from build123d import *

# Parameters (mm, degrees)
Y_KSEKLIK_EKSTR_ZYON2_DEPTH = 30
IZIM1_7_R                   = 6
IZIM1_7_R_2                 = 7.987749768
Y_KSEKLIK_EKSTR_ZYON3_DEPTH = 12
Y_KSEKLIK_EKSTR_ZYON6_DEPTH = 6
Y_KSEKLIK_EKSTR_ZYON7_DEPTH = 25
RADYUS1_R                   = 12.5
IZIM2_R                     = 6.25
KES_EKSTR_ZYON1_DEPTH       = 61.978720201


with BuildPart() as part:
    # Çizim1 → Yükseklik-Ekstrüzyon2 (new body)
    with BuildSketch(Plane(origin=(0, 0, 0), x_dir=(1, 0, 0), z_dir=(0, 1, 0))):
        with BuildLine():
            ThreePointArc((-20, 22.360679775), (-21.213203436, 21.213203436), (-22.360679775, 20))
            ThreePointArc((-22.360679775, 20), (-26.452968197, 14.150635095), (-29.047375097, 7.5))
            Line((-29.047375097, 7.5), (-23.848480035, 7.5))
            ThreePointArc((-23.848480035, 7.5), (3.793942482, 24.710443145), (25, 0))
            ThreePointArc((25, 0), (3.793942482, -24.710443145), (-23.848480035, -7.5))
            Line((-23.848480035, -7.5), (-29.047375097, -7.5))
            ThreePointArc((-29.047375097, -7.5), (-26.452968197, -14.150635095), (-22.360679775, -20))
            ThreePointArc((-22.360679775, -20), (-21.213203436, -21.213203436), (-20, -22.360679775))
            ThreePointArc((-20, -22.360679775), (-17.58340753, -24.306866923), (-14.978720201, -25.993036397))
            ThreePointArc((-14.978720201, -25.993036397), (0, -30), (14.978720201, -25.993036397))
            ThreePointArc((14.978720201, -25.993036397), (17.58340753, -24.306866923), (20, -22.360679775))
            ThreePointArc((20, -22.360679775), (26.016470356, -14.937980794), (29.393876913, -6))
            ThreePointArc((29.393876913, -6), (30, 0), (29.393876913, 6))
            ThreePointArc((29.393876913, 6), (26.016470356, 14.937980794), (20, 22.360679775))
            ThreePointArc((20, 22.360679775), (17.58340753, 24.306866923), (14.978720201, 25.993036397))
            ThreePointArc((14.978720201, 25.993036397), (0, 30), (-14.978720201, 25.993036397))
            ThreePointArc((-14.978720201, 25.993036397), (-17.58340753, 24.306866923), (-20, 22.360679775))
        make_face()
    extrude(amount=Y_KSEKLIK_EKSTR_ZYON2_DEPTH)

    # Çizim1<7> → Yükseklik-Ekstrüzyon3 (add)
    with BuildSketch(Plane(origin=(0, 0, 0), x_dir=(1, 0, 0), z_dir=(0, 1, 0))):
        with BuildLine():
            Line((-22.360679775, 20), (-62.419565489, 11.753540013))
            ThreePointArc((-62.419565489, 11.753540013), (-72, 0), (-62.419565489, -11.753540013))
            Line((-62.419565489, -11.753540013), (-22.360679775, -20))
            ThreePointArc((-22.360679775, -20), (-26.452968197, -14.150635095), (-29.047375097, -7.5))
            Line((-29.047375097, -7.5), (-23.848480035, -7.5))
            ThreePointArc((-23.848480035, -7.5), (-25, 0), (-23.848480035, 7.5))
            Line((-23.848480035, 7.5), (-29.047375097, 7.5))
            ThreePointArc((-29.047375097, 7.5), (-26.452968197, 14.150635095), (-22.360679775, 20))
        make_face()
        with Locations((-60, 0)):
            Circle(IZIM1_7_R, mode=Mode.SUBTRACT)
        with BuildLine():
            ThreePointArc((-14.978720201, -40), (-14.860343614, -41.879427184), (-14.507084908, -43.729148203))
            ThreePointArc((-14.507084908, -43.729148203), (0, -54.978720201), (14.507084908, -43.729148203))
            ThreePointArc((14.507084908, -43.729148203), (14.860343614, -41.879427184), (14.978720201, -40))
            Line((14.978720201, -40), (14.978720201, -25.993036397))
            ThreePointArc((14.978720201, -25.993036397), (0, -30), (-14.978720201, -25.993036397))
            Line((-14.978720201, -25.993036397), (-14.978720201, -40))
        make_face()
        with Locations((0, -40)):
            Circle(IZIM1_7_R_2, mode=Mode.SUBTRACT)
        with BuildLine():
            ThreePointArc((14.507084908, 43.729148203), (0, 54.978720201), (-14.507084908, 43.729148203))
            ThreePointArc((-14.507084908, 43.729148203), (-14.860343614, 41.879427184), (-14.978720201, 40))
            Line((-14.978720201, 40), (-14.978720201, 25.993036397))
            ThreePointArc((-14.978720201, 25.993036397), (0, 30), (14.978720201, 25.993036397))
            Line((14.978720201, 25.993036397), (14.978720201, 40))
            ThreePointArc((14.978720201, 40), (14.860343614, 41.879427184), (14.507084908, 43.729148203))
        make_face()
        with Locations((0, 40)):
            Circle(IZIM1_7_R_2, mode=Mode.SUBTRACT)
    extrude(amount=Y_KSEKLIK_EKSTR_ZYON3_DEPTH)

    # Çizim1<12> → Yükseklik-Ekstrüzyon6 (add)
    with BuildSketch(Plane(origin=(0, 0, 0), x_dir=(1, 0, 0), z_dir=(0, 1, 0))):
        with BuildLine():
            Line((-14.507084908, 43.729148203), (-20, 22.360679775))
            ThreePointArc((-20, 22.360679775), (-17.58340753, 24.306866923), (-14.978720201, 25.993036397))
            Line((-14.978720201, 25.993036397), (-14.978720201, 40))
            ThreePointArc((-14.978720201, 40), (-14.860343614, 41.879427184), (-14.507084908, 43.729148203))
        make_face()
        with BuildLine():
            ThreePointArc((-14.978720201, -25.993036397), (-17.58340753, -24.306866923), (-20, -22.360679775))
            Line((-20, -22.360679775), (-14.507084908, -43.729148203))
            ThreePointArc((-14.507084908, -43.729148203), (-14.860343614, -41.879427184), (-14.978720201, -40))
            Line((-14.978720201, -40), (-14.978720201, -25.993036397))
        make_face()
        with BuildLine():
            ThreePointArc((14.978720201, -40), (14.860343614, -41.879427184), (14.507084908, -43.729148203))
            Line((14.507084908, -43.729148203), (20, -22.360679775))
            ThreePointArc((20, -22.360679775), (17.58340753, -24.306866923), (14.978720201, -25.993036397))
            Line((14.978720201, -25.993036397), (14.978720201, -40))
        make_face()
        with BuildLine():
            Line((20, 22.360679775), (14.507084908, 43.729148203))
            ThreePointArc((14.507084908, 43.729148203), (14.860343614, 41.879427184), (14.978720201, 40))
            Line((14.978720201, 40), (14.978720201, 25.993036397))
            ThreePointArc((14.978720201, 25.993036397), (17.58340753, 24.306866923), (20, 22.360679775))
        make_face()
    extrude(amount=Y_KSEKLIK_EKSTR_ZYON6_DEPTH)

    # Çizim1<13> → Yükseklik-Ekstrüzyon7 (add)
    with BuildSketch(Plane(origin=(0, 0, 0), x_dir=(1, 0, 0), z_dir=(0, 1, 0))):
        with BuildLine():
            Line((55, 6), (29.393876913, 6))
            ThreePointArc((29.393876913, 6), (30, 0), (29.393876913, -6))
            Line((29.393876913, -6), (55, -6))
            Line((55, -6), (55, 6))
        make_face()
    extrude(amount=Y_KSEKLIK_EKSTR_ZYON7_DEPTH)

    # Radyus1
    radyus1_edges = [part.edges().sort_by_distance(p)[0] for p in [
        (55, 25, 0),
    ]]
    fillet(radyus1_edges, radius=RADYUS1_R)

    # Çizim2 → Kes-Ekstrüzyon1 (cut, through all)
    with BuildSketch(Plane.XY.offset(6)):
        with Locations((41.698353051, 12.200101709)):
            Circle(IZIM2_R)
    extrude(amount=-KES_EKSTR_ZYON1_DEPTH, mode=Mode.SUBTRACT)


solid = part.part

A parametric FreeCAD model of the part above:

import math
import FreeCAD as App
import Part
import Sketcher
Q = App.Units.Quantity


def edges_at(feature, points):
    """Names of the edges that pass closest to the given points."""
    edges = feature.Shape.Edges
    near = lambda p: min(range(len(edges)), key=lambda i: edges[i].distToShape(Part.Vertex(*p))[0])
    return sorted({f"Edge{near(p) + 1}" for p in points})

doc = App.newDocument("Part")
params = doc.addObject("Spreadsheet::Sheet", "Params")
for row, (alias, value) in enumerate([
    ("sketch1_radius", "30 mm"),
    ("sketch1_radius2", "25 mm"),
    ("pad1_length", "30 mm"),
    ("sketch2_diameter", "12 mm"),
    ("sketch2_radius", "12 mm"),
    ("sketch2_radius2", "30 mm"),
    ("sketch2_radius3", "25 mm"),
    ("pad2_length", "12 mm"),
    ("sketch3_radius", "30 mm"),
    ("pad3_length", "6 mm"),
    ("sketch4_radius", "30 mm"),
    ("sketch4_height", "12 mm"),
    ("pad4_length", "25 mm"),
    ("fillet_radius", "12.5 mm"),
    ("sketch5_diameter", "12.5 mm"),
], start=1):
    params.set(f"A{row}", alias)
    params.set(f"B{row}", "=" + value)
    params.setAlias(f"B{row}", alias)

body = doc.addObject("PartDesign::Body", "Body")

# Sketch on XZ plane
sketch1 = doc.addObject("Sketcher::SketchObject", "Sketch")
body.addObject(sketch1)
sketch1.AttachmentSupport = (doc.XZ_Plane, [""])
sketch1.MapMode = "FlatFace"
sketch1.addGeometry([
    Part.ArcOfCircle(Part.Circle(App.Vector(0, 0, 0), App.Vector(0, 0, 1), 30), math.radians(-138.19), math.radians(-131.81)),  # 0
    Part.ArcOfCircle(Part.Circle(App.Vector(0, 0, 0), App.Vector(0, 0, 1), 30), math.radians(-166), math.radians(-138)),  # 1
    Part.LineSegment(App.Vector(-29, -7.5, 0), App.Vector(-23.8, -7.5, 0)),  # 2
    Part.ArcOfCircle(Part.Circle(App.Vector(0, 0, 0), App.Vector(0, 0, 1), 25), math.radians(-163), math.radians(0)),  # 3
    Part.ArcOfCircle(Part.Circle(App.Vector(0, 0, 0), App.Vector(0, 0, 1), 25), math.radians(0), math.radians(163)),  # 4
    Part.LineSegment(App.Vector(-23.8, 7.5, 0), App.Vector(-29, 7.5, 0)),  # 5
    Part.ArcOfCircle(Part.Circle(App.Vector(0, 0, 0), App.Vector(0, 0, 1), 30), math.radians(138), math.radians(166)),  # 6
    Part.ArcOfCircle(Part.Circle(App.Vector(0, 0, 0), App.Vector(0, 0, 1), 30), math.radians(131.81), math.radians(138.19)),  # 7
    Part.ArcOfCircle(Part.Circle(App.Vector(0, 0, 0), App.Vector(0, 0, 1), 30), math.radians(119.95), math.radians(131.81)),  # 8
    Part.ArcOfCircle(Part.Circle(App.Vector(0, 0, 0), App.Vector(0, 0, 1), 30), math.radians(60), math.radians(120)),  # 9
    Part.ArcOfCircle(Part.Circle(App.Vector(0, 0, 0), App.Vector(0, 0, 1), 30), math.radians(48.19), math.radians(60.05)),  # 10
    Part.ArcOfCircle(Part.Circle(App.Vector(0, 0, 0), App.Vector(0, 0, 1), 30), math.radians(12), math.radians(48)),  # 11
    Part.ArcOfCircle(Part.Circle(App.Vector(0, 0, 0), App.Vector(0, 0, 1), 30), math.radians(-12), math.radians(12)),  # 12
    Part.ArcOfCircle(Part.Circle(App.Vector(0, 0, 0), App.Vector(0, 0, 1), 30), math.radians(-48), math.radians(-12)),  # 13
    Part.ArcOfCircle(Part.Circle(App.Vector(0, 0, 0), App.Vector(0, 0, 1), 30), math.radians(-60.05), math.radians(-48.19)),  # 14
    Part.ArcOfCircle(Part.Circle(App.Vector(0, 0, 0), App.Vector(0, 0, 1), 30), math.radians(-120), math.radians(-60)),  # 15
    Part.ArcOfCircle(Part.Circle(App.Vector(0, 0, 0), App.Vector(0, 0, 1), 30), math.radians(-131.81), math.radians(-119.95)),  # 16
], False)
sketch1.addConstraint([
    Sketcher.Constraint("Tangent", 0, 1, 1, 2),
    Sketcher.Constraint("Coincident", 1, 1, 2, 1),
    Sketcher.Constraint("Coincident", 2, 2, 3, 1),
    Sketcher.Constraint("Tangent", 3, 2, 4, 1),
    Sketcher.Constraint("Coincident", 4, 2, 5, 1),
    Sketcher.Constraint("Coincident", 5, 2, 6, 2),
    Sketcher.Constraint("Tangent", 6, 1, 7, 2),
    Sketcher.Constraint("Tangent", 7, 1, 8, 2),
    Sketcher.Constraint("Tangent", 8, 1, 9, 2),
    Sketcher.Constraint("Tangent", 9, 1, 10, 2),
    Sketcher.Constraint("Tangent", 10, 1, 11, 2),
    Sketcher.Constraint("Tangent", 11, 1, 12, 2),
    Sketcher.Constraint("Tangent", 12, 1, 13, 2),
    Sketcher.Constraint("Tangent", 13, 1, 14, 2),
    Sketcher.Constraint("Tangent", 14, 1, 15, 2),
    Sketcher.Constraint("Tangent", 15, 1, 16, 2),
    Sketcher.Constraint("Tangent", 16, 1, 0, 2),
    Sketcher.Constraint("Horizontal", 2),
    Sketcher.Constraint("Horizontal", 5),
    Sketcher.Constraint("Coincident", 0, 3, -1, 1),
    Sketcher.Constraint("Coincident", 3, 3, -1, 1),
    Sketcher.Constraint("Coincident", 6, 3, -1, 1),
    Sketcher.Constraint("Coincident", 8, 3, -1, 1),
    Sketcher.Constraint("Coincident", 10, 3, -1, 1),
    Sketcher.Constraint("Coincident", 12, 3, -1, 1),
    Sketcher.Constraint("Coincident", 14, 3, -1, 1),
    Sketcher.Constraint("Equal", 0, 1),
    Sketcher.Constraint("Equal", 3, 4),
    Sketcher.Constraint("Equal", 1, 6),
    Sketcher.Constraint("PointOnObject", 3, 2, -1),
    Sketcher.Constraint("Horizontal", 8, 1, 9, 1),
    Sketcher.Constraint("Horizontal", 7, 1, 10, 1),
    Sketcher.Constraint("Horizontal", 14, 1, 15, 1),
    Sketcher.Constraint("Horizontal", 13, 1, 16, 1),
    Sketcher.Constraint("Vertical", 2, 2, 4, 2),
    Sketcher.Constraint("Vertical", 0, 1, 6, 1),
    Sketcher.Constraint("Vertical", 11, 1, 12, 1),
    Sketcher.Constraint("Vertical", 10, 1, 13, 1),
    Sketcher.Constraint("Vertical", 9, 1, 14, 1),
    Sketcher.Constraint("Radius", 0, Q("30 mm")),
    Sketcher.Constraint("Radius", 3, Q("25 mm")),
    Sketcher.Constraint("DistanceY", 0, 1, -1, 1, Q("20 mm")),
    Sketcher.Constraint("DistanceX", 7, 1, -1, 1, Q("20 mm")),
    Sketcher.Constraint("DistanceY", -1, 1, 11, 1, Q("6 mm")),
    Sketcher.Constraint("DistanceY", 2, 2, 4, 2, Q("15 mm")),
    Sketcher.Constraint("DistanceX", 8, 1, -1, 1, Q("14.97872 mm")),
])
sketch1.setExpression("Constraints[39]", "Params.sketch1_radius")
sketch1.setExpression("Constraints[40]", "Params.sketch1_radius2")
pad1 = doc.addObject("PartDesign::Pad", "Pad")
body.addObject(pad1)
pad1.Profile = sketch1
pad1.setExpression("Length", "Params.pad1_length")
pad1.Reversed = True

# Sketch on XZ plane
sketch2 = doc.addObject("Sketcher::SketchObject", "Sketch001")
body.addObject(sketch2)
sketch2.AttachmentSupport = (doc.XZ_Plane, [""])
sketch2.MapMode = "FlatFace"
sketch2.addGeometry([
    Part.LineSegment(App.Vector(-22.4, -20, 0), App.Vector(-62.4, -11.8, 0)),  # 0
    Part.ArcOfCircle(Part.Circle(App.Vector(-60, 0, 0), App.Vector(0, 0, 1), 12), math.radians(102), math.radians(258)),  # 1
    Part.LineSegment(App.Vector(-62.4, 11.8, 0), App.Vector(-22.4, 20, 0)),  # 2
    Part.ArcOfCircle(Part.Circle(App.Vector(0, 0, 0), App.Vector(0, 0, 1), 30), math.radians(138), math.radians(166)),  # 3
    Part.LineSegment(App.Vector(-29, 7.5, 0), App.Vector(-23.8, 7.5, 0)),  # 4
    Part.ArcOfCircle(Part.Circle(App.Vector(0, 0, 0), App.Vector(0, 0, 1), 25), math.radians(163), math.radians(197)),  # 5
    Part.LineSegment(App.Vector(-23.8, -7.5, 0), App.Vector(-29, -7.5, 0)),  # 6
    Part.ArcOfCircle(Part.Circle(App.Vector(0, 0, 0), App.Vector(0, 0, 1), 30), math.radians(-166), math.radians(-138)),  # 7
    Part.Circle(App.Vector(-60, 0, 0), App.Vector(0, 0, 1), 6),  # 8
    Part.ArcOfCircle(Part.Circle(App.Vector(0, 40, 0), App.Vector(0, 0, 1), 15), math.radians(165.58), math.radians(180)),  # 9
    Part.ArcOfCircle(Part.Circle(App.Vector(0, 40, 0), App.Vector(0, 0, 1), 15), math.radians(14), math.radians(166)),  # 10
    Part.ArcOfCircle(Part.Circle(App.Vector(0, 40, 0), App.Vector(0, 0, 1), 15), math.radians(0), math.radians(14.42)),  # 11
    Part.LineSegment(App.Vector(15, 40, 0), App.Vector(15, 26, 0)),  # 12
    Part.ArcOfCircle(Part.Circle(App.Vector(0, 0, 0), App.Vector(0, 0, 1), 30), math.radians(60), math.radians(120)),  # 13
    Part.LineSegment(App.Vector(-15, 26, 0), App.Vector(-15, 40, 0)),  # 14
    Part.Circle(App.Vector(0, 40, 0), App.Vector(0, 0, 1), 8),  # 15
    Part.ArcOfCircle(Part.Circle(App.Vector(0, -40, 0), App.Vector(0, 0, 1), 15), math.radians(-166), math.radians(-14)),  # 16
    Part.ArcOfCircle(Part.Circle(App.Vector(0, -40, 0), App.Vector(0, 0, 1), 15), math.radians(180), math.radians(194.42)),  # 17
    Part.LineSegment(App.Vector(-15, -40, 0), App.Vector(-15, -26, 0)),  # 18
    Part.ArcOfCircle(Part.Circle(App.Vector(0, 0, 0), App.Vector(0, 0, 1), 30), math.radians(-120), math.radians(-60)),  # 19
    Part.LineSegment(App.Vector(15, -26, 0), App.Vector(15, -40, 0)),  # 20
    Part.ArcOfCircle(Part.Circle(App.Vector(0, -40, 0), App.Vector(0, 0, 1), 15), math.radians(-14.42), math.radians(0)),  # 21
    Part.Circle(App.Vector(0, -40, 0), App.Vector(0, 0, 1), 8),  # 22
], False)
sketch2.addConstraint([
    Sketcher.Constraint("Tangent", 0, 2, 1, 2),
    Sketcher.Constraint("Tangent", 1, 1, 2, 1),
    Sketcher.Constraint("Coincident", 2, 2, 3, 1),
    Sketcher.Constraint("Coincident", 3, 2, 4, 1),
    Sketcher.Constraint("Coincident", 4, 2, 5, 1),
    Sketcher.Constraint("Coincident", 5, 2, 6, 1),
    Sketcher.Constraint("Coincident", 6, 2, 7, 1),
    Sketcher.Constraint("Coincident", 7, 2, 0, 1),
    Sketcher.Constraint("Tangent", 9, 1, 10, 2),
    Sketcher.Constraint("Tangent", 10, 1, 11, 2),
    Sketcher.Constraint("Tangent", 11, 1, 12, 1),
    Sketcher.Constraint("Coincident", 12, 2, 13, 1),
    Sketcher.Constraint("Coincident", 13, 2, 14, 1),
    Sketcher.Constraint("Tangent", 14, 2, 9, 2),
    Sketcher.Constraint("Tangent", 16, 1, 17, 2),
    Sketcher.Constraint("Tangent", 17, 1, 18, 1),
    Sketcher.Constraint("Coincident", 18, 2, 19, 1),
    Sketcher.Constraint("Coincident", 19, 2, 20, 1),
    Sketcher.Constraint("Tangent", 20, 2, 21, 2),
    Sketcher.Constraint("Tangent", 21, 1, 16, 2),
    Sketcher.Constraint("Horizontal", 4),
    Sketcher.Constraint("Horizontal", 6),
    Sketcher.Constraint("Vertical", 12),
    Sketcher.Constraint("Vertical", 14),
    Sketcher.Constraint("Vertical", 18),
    Sketcher.Constraint("Vertical", 20),
    Sketcher.Constraint("Coincident", 3, 3, -1, 1),
    Sketcher.Constraint("Coincident", 5, 3, -1, 1),
    Sketcher.Constraint("Coincident", 7, 3, -1, 1),
    Sketcher.Constraint("Coincident", 13, 3, -1, 1),
    Sketcher.Constraint("Coincident", 19, 3, -1, 1),
    Sketcher.Constraint("Coincident", 8, 3, 1, 3),
    Sketcher.Constraint("Coincident", 11, 3, 9, 3),
    Sketcher.Constraint("Coincident", 15, 3, 9, 3),
    Sketcher.Constraint("Coincident", 22, 3, 16, 3),
    Sketcher.Constraint("Equal", 3, 7),
    Sketcher.Constraint("Equal", 7, 13),
    Sketcher.Constraint("Equal", 11, 16),
    Sketcher.Constraint("Equal", 16, 17),
    Sketcher.Constraint("Equal", 13, 19),
    Sketcher.Constraint("Equal", 17, 21),
    Sketcher.Constraint("Equal", 15, 22),
    Sketcher.Constraint("Symmetric", 9, 3, 16, 3, -1, 1),
    Sketcher.Constraint("Symmetric", 9, 1, 10, 1, -2),
    Sketcher.Constraint("Symmetric", 0, 2, 1, 1, -1),
    Sketcher.Constraint("Horizontal", 16, 1, 21, 1),
    Sketcher.Constraint("Vertical", 4, 2, 5, 2),
    Sketcher.Constraint("Vertical", 9, 1, 16, 1),
    Sketcher.Constraint("Diameter", 8, Q("12 mm")),
    Sketcher.Constraint("Radius", 1, Q("12 mm")),
    Sketcher.Constraint("Radius", 3, Q("30 mm")),
    Sketcher.Constraint("Radius", 5, Q("25 mm")),
    Sketcher.Constraint("DistanceX", 1, 3, -1, 1, Q("60 mm")),
    Sketcher.Constraint("DistanceY", -1, 1, 9, 3, Q("40 mm")),
    Sketcher.Constraint("DistanceY", -1, 1, 2, 2, Q("20 mm")),
    Sketcher.Constraint("DistanceY", 5, 2, 4, 2, Q("15 mm")),
    Sketcher.Constraint("Diameter", 15, Q("15.9755 mm")),
    Sketcher.Constraint("Radius", 9, Q("14.97872 mm")),
    Sketcher.Constraint("DistanceY", -1, 1, 9, 1, Q("43.729148 mm")),
])
sketch2.setExpression("Constraints[48]", "Params.sketch2_diameter")
sketch2.setExpression("Constraints[49]", "Params.sketch2_radius")
sketch2.setExpression("Constraints[50]", "Params.sketch2_radius2")
sketch2.setExpression("Constraints[51]", "Params.sketch2_radius3")
pad2 = doc.addObject("PartDesign::Pad", "Pad001")
body.addObject(pad2)
pad2.Profile = sketch2
pad2.setExpression("Length", "Params.pad2_length")
pad2.Reversed = True

# Sketch on XZ plane
sketch3 = doc.addObject("Sketcher::SketchObject", "Sketch002")
body.addObject(sketch3)
sketch3.AttachmentSupport = (doc.XZ_Plane, [""])
sketch3.MapMode = "FlatFace"
sketch3.addGeometry([
    Part.LineSegment(App.Vector(-14.5, -43.7, 0), App.Vector(-20, -22.4, 0)),  # 0
    Part.ArcOfCircle(Part.Circle(App.Vector(0, 0, 0), App.Vector(0, 0, 1), 30), math.radians(-131.81), math.radians(-119.95)),  # 1
    Part.LineSegment(App.Vector(-15, -26, 0), App.Vector(-15, -40, 0)),  # 2
    Part.ArcOfCircle(Part.Circle(App.Vector(0, -40, 0), App.Vector(0, 0, 1), 15), math.radians(180), math.radians(194.42)),  # 3
    Part.ArcOfCircle(Part.Circle(App.Vector(0, 0, 0), App.Vector(0, 0, 1), 30), math.radians(119.95), math.radians(131.81)),  # 4
    Part.LineSegment(App.Vector(-20, 22.4, 0), App.Vector(-14.5, 43.7, 0)),  # 5
    Part.ArcOfCircle(Part.Circle(App.Vector(0, 40, 0), App.Vector(0, 0, 1), 15), math.radians(165.58), math.radians(180)),  # 6
    Part.LineSegment(App.Vector(-15, 40, 0), App.Vector(-15, 26, 0)),  # 7
    Part.ArcOfCircle(Part.Circle(App.Vector(0, 40, 0), App.Vector(0, 0, 1), 15), math.radians(0), math.radians(14.42)),  # 8
    Part.LineSegment(App.Vector(14.5, 43.7, 0), App.Vector(20, 22.4, 0)),  # 9
    Part.ArcOfCircle(Part.Circle(App.Vector(0, 0, 0), App.Vector(0, 0, 1), 30), math.radians(48.19), math.radians(60.05)),  # 10
    Part.LineSegment(App.Vector(15, 26, 0), App.Vector(15, 40, 0)),  # 11
    Part.LineSegment(App.Vector(20, -22.4, 0), App.Vector(14.5, -43.7, 0)),  # 12
    Part.ArcOfCircle(Part.Circle(App.Vector(0, -40, 0), App.Vector(0, 0, 1), 15), math.radians(-14.42), math.radians(0)),  # 13
    Part.LineSegment(App.Vector(15, -40, 0), App.Vector(15, -26, 0)),  # 14
    Part.ArcOfCircle(Part.Circle(App.Vector(0, 0, 0), App.Vector(0, 0, 1), 30), math.radians(-60.05), math.radians(-48.19)),  # 15
], False)
sketch3.addConstraint([
    Sketcher.Constraint("Coincident", 0, 2, 1, 1),
    Sketcher.Constraint("Coincident", 1, 2, 2, 1),
    Sketcher.Constraint("Tangent", 2, 2, 3, 1),
    Sketcher.Constraint("Tangent", 3, 2, 0, 1),
    Sketcher.Constraint("Coincident", 4, 2, 5, 1),
    Sketcher.Constraint("Tangent", 5, 2, 6, 1),
    Sketcher.Constraint("Tangent", 6, 2, 7, 1),
    Sketcher.Constraint("Coincident", 7, 2, 4, 1),
    Sketcher.Constraint("Tangent", 8, 2, 9, 1),
    Sketcher.Constraint("Coincident", 9, 2, 10, 1),
    Sketcher.Constraint("Coincident", 10, 2, 11, 1),
    Sketcher.Constraint("Tangent", 11, 2, 8, 1),
    Sketcher.Constraint("Tangent", 12, 2, 13, 1),
    Sketcher.Constraint("Tangent", 13, 2, 14, 1),
    Sketcher.Constraint("Coincident", 14, 2, 15, 1),
    Sketcher.Constraint("Coincident", 15, 2, 12, 1),
    Sketcher.Constraint("Vertical", 2),
    Sketcher.Constraint("Vertical", 7),
    Sketcher.Constraint("Vertical", 11),
    Sketcher.Constraint("Vertical", 14),
    Sketcher.Constraint("Coincident", 1, 3, -1, 1),
    Sketcher.Constraint("Coincident", 4, 3, -1, 1),
    Sketcher.Constraint("Coincident", 10, 3, -1, 1),
    Sketcher.Constraint("Coincident", 15, 3, -1, 1),
    Sketcher.Constraint("Coincident", 8, 3, 6, 3),
    Sketcher.Constraint("Coincident", 13, 3, 3, 3),
    Sketcher.Constraint("Equal", 1, 4),
    Sketcher.Constraint("Equal", 3, 6),
    Sketcher.Constraint("Equal", 6, 8),
    Sketcher.Constraint("Equal", 4, 10),
    Sketcher.Constraint("Equal", 8, 13),
    Sketcher.Constraint("Equal", 10, 15),
    Sketcher.Constraint("Symmetric", 3, 3, 6, 3, -1, 1),
    Sketcher.Constraint("Symmetric", 5, 2, 8, 2, -2),
    Sketcher.Constraint("Parallel", 0, 9),
    Sketcher.Constraint("Parallel", 5, 12),
    Sketcher.Constraint("Radius", 1, Q("30 mm")),
    Sketcher.Constraint("DistanceY", 3, 3, -1, 1, Q("40 mm")),
    Sketcher.Constraint("DistanceX", 0, 2, -1, 1, Q("20 mm")),
    Sketcher.Constraint("Radius", 3, Q("14.97872 mm")),
])
sketch3.setExpression("Constraints[36]", "Params.sketch3_radius")
pad3 = doc.addObject("PartDesign::Pad", "Pad002")
body.addObject(pad3)
pad3.Profile = sketch3
pad3.setExpression("Length", "Params.pad3_length")
pad3.Reversed = True

# Sketch on XZ plane
sketch4 = doc.addObject("Sketcher::SketchObject", "Sketch003")
body.addObject(sketch4)
sketch4.AttachmentSupport = (doc.XZ_Plane, [""])
sketch4.MapMode = "FlatFace"
sketch4.addGeometry([
    Part.LineSegment(App.Vector(55, -6, 0), App.Vector(29, -6, 0)),
    Part.ArcOfCircle(Part.Circle(App.Vector(0, 0, 0), App.Vector(0, 0, 1), 30), math.radians(-12), math.radians(12)),
    Part.LineSegment(App.Vector(29, 6, 0), App.Vector(55, 6, 0)),
    Part.LineSegment(App.Vector(55, 6, 0), App.Vector(55, -6, 0)),
], False)
sketch4.addConstraint([
    Sketcher.Constraint("Coincident", 0, 2, 1, 1),
    Sketcher.Constraint("Coincident", 1, 2, 2, 1),
    Sketcher.Constraint("Coincident", 2, 2, 3, 1),
    Sketcher.Constraint("Coincident", 3, 2, 0, 1),
    Sketcher.Constraint("Horizontal", 0),
    Sketcher.Constraint("Horizontal", 2),
    Sketcher.Constraint("Vertical", 3),
    Sketcher.Constraint("Coincident", 1, 3, -1, 1),
    Sketcher.Constraint("Vertical", 0, 2, 1, 2),
    Sketcher.Constraint("Radius", 1, Q("30 mm")),
    Sketcher.Constraint("DistanceY", 3, 2, 3, 1, Q("12 mm")),
    Sketcher.Constraint("DistanceX", -1, 1, 2, 2, Q("55 mm")),
])
sketch4.setExpression("Constraints[9]", "Params.sketch4_radius")
sketch4.setExpression("Constraints[10]", "Params.sketch4_height")
pad4 = doc.addObject("PartDesign::Pad", "Pad003")
body.addObject(pad4)
pad4.Profile = sketch4
pad4.setExpression("Length", "Params.pad4_length")
pad4.Reversed = True
doc.recompute()

fillet = doc.addObject("PartDesign::Fillet", "Fillet")
body.addObject(fillet)
fillet.Base = (pad4, edges_at(pad4, [(55, 25, 0)]))
fillet.setExpression("Radius", "Params.fillet_radius")

# Sketch on XY plane
sketch5 = doc.addObject("Sketcher::SketchObject", "Sketch004")
body.addObject(sketch5)
sketch5.AttachmentSupport = (doc.XY_Plane, [""])
sketch5.MapMode = "FlatFace"
sketch5.AttachmentOffset = App.Placement(App.Vector(0, 0, 6), App.Rotation())
sketch5.addGeometry(Part.Circle(App.Vector(42, 12, 0), App.Vector(0, 0, 1), 6), False)
sketch5.addConstraint([
    Sketcher.Constraint("Diameter", 0, Q("12.5 mm")),
    Sketcher.Constraint("DistanceY", -1, 1, 0, 3, Q("12.200102 mm")),
    Sketcher.Constraint("DistanceX", -1, 1, 0, 3, Q("41.698353 mm")),
])
sketch5.setExpression("Constraints[0]", "Params.sketch5_diameter")
pocket1 = doc.addObject("PartDesign::Pocket", "Pocket")
body.addObject(pocket1)
pocket1.Profile = sketch5
pocket1.Type = "ThroughAll"

doc.recompute()
